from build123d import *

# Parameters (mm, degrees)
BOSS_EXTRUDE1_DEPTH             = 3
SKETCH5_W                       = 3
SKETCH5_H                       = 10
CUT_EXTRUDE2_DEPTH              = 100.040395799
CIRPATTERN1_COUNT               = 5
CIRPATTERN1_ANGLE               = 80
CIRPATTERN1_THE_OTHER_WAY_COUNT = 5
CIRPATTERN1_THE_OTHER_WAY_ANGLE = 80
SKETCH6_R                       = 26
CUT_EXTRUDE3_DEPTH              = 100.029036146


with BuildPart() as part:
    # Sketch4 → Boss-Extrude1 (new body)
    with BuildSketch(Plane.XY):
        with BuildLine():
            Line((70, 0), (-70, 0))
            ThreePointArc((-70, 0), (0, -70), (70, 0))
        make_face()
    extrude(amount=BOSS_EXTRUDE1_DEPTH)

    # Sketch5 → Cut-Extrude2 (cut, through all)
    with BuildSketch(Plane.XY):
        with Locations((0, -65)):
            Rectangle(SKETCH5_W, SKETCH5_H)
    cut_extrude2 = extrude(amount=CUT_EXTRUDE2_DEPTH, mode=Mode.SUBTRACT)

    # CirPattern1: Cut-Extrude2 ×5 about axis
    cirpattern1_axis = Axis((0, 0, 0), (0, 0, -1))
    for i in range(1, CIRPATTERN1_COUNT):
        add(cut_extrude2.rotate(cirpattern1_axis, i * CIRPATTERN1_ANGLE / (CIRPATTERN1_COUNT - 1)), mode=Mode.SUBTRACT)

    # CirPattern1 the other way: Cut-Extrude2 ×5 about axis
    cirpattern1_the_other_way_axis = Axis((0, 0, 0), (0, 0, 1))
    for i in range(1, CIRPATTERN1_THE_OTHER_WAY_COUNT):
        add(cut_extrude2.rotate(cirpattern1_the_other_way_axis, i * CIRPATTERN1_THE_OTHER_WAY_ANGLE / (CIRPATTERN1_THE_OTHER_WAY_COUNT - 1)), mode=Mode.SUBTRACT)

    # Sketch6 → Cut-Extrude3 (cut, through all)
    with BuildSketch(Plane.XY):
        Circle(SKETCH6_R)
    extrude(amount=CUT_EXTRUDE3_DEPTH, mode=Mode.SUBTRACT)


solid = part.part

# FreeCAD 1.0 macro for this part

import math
import FreeCAD as App
import Part
import Sketcher


def add_polygon(sketch, points):
    """Adds a closed chain of lines whose ends are joined by coincident constraints."""
    first, n = sketch.GeometryCount, len(points)
    for a, b in zip(points, points[1:] + points[:1]):
        sketch.addGeometry(Part.LineSegment(App.Vector(*a, 0), App.Vector(*b, 0)), False)
    for i in range(n):
        sketch.addConstraint(Sketcher.Constraint("Coincident", first + i, 2, first + (i + 1) % n, 1))

doc = App.newDocument("Part")
body = doc.addObject("PartDesign::Body", "Body")

# Sketch on XY plane
sketch1 = body.newObject("Sketcher::SketchObject", "Sketch")
sketch1.AttachmentSupport = (doc.getObject("XY_Plane"), [""])
sketch1.MapMode = "FlatFace"
sketch1.addGeometry([
    Part.LineSegment(App.Vector(70, 0, 0), App.Vector(-70, 0, 0)),
    Part.ArcOfCircle(Part.Circle(App.Vector(0, 0, 0), App.Vector(0, 0, 1), 70), math.radians(180), math.radians(360)),
], False)
sketch1.addConstraint([
    Sketcher.Constraint("Coincident", 0, 1, 1, 2),
    Sketcher.Constraint("Coincident", 1, 1, 0, 2),
    Sketcher.Constraint("Horizontal", 0),
    Sketcher.Constraint("Coincident", 1, 3, -1, 1),
    Sketcher.Constraint("PointOnObject", 0, 1, -1),
    Sketcher.Constraint("Radius", 1, 70.0),
])
pad1 = body.newObject("PartDesign::Pad", "Pad")
pad1.Profile = sketch1
pad1.Length = 3

# Sketch on XY plane
sketch2 = body.newObject("Sketcher::SketchObject", "Sketch001")
sketch2.AttachmentSupport = (doc.getObject("XY_Plane"), [""])
sketch2.MapMode = "FlatFace"
add_polygon(sketch2, [(-1.5, -60), (-1.5, -70), (1.5, -70), (1.5, -60)])  # lines 0-3
sketch2.addConstraint([
    Sketcher.Constraint("Vertical", 0),
    Sketcher.Constraint("Horizontal", 1),
    Sketcher.Constraint("Vertical", 2),
    Sketcher.Constraint("Horizontal", 3),
    Sketcher.Constraint("DistanceX", 1, 1, 1, 2, 3.0),
    Sketcher.Constraint("DistanceY", 0, 2, 0, 1, 10.0),
    Sketcher.Constraint("DistanceY", 0, 2, -1, 1, 70.0),
    Sketcher.Constraint("DistanceX", 0, 2, -1, 1, 1.5),
])
pocket1 = body.newObject("PartDesign::Pocket", "Pocket")
pocket1.Profile = sketch2
pocket1.Type = "ThroughAll"
pocket1.Reversed = True
doc.recompute()

polarpattern = body.newObject("PartDesign::PolarPattern", "PolarPattern")
polarpattern.Originals = [pocket1]
polarpattern.Axis = (doc.getObject("Z_Axis"), [""])
polarpattern.Angle = 80
polarpattern.Occurrences = 5
polarpattern.Reversed = True
body.Tip = polarpattern
doc.recompute()

polarpattern2 = body.newObject("PartDesign::PolarPattern", "PolarPattern001")
polarpattern2.Originals = [pocket1]
polarpattern2.Axis = (doc.getObject("Z_Axis"), [""])
polarpattern2.Angle = 80
polarpattern2.Occurrences = 5
body.Tip = polarpattern2

# Sketch on XY plane
sketch3 = body.newObject("Sketcher::SketchObject", "Sketch002")
sketch3.AttachmentSupport = (doc.getObject("XY_Plane"), [""])
sketch3.MapMode = "FlatFace"
sketch3.addGeometry(Part.Circle(App.Vector(0, 0, 0), App.Vector(0, 0, 1), 26), False)
sketch3.addConstraint([
    Sketcher.Constraint("Coincident", 0, 3, -1, 1),
    Sketcher.Constraint("Diameter", 0, 52.0),
])
pocket2 = body.newObject("PartDesign::Pocket", "Pocket001")
pocket2.Profile = sketch3
pocket2.Type = "ThroughAll"
pocket2.Reversed = True

doc.recompute()
